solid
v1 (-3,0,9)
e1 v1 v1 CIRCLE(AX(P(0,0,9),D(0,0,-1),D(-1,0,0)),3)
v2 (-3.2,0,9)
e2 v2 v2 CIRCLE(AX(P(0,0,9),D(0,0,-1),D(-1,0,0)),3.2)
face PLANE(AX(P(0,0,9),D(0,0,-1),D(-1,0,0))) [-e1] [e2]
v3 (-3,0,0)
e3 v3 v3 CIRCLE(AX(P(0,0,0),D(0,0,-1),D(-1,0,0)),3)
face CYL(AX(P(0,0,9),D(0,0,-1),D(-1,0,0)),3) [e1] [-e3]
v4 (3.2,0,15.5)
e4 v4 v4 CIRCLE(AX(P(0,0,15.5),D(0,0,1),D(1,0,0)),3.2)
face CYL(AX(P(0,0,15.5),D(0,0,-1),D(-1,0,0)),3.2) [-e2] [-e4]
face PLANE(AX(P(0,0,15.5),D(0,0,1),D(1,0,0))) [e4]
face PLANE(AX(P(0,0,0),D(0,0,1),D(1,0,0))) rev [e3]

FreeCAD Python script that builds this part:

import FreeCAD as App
import Part
import Sketcher
from FreeCAD import Vector

doc = App.newDocument("Part")
body = doc.addObject("PartDesign::Body", "Body")

# Sketch on XY plane
sketch1 = body.newObject("Sketcher::SketchObject", "Sketch")
sketch1.AttachmentSupport = (doc.getObject("XY_Plane"), [""])
sketch1.MapMode = "FlatFace"
sketch1.addGeometry(Part.Circle(Vector(0, 0, 0), Vector(0, 0, 1), 3.2), False)
sketch1.addConstraint([
    Sketcher.Constraint("Coincident", 0, 3, -1, 1),
    Sketcher.Constraint("Diameter", 0, 6.4),
])
pad1 = body.newObject("PartDesign::Pad", "Pad")
pad1.Profile = sketch1
pad1.Length = 15.5

# Sketch on XY plane
sketch2 = body.newObject("Sketcher::SketchObject", "Sketch001")
sketch2.AttachmentSupport = (doc.getObject("XY_Plane"), [""])
sketch2.MapMode = "FlatFace"
sketch2.addGeometry([
    Part.Circle(Vector(0, 0, 0), Vector(0, 0, 1), 3.2),
    Part.Circle(Vector(0, 0, 0), Vector(0, 0, 1), 3),
], False)
sketch2.addConstraint([
    Sketcher.Constraint("Coincident", 0, 3, -1, 1),
    Sketcher.Constraint("Coincident", 1, 3, -1, 1),
    Sketcher.Constraint("Diameter", 1, 6.0),
    Sketcher.Constraint("Diameter", 0, 6.4),
])
pocket1 = body.newObject("PartDesign::Pocket", "Pocket")
pocket1.Profile = sketch2
pocket1.Length = 9
pocket1.Reversed = True

doc.recompute()
